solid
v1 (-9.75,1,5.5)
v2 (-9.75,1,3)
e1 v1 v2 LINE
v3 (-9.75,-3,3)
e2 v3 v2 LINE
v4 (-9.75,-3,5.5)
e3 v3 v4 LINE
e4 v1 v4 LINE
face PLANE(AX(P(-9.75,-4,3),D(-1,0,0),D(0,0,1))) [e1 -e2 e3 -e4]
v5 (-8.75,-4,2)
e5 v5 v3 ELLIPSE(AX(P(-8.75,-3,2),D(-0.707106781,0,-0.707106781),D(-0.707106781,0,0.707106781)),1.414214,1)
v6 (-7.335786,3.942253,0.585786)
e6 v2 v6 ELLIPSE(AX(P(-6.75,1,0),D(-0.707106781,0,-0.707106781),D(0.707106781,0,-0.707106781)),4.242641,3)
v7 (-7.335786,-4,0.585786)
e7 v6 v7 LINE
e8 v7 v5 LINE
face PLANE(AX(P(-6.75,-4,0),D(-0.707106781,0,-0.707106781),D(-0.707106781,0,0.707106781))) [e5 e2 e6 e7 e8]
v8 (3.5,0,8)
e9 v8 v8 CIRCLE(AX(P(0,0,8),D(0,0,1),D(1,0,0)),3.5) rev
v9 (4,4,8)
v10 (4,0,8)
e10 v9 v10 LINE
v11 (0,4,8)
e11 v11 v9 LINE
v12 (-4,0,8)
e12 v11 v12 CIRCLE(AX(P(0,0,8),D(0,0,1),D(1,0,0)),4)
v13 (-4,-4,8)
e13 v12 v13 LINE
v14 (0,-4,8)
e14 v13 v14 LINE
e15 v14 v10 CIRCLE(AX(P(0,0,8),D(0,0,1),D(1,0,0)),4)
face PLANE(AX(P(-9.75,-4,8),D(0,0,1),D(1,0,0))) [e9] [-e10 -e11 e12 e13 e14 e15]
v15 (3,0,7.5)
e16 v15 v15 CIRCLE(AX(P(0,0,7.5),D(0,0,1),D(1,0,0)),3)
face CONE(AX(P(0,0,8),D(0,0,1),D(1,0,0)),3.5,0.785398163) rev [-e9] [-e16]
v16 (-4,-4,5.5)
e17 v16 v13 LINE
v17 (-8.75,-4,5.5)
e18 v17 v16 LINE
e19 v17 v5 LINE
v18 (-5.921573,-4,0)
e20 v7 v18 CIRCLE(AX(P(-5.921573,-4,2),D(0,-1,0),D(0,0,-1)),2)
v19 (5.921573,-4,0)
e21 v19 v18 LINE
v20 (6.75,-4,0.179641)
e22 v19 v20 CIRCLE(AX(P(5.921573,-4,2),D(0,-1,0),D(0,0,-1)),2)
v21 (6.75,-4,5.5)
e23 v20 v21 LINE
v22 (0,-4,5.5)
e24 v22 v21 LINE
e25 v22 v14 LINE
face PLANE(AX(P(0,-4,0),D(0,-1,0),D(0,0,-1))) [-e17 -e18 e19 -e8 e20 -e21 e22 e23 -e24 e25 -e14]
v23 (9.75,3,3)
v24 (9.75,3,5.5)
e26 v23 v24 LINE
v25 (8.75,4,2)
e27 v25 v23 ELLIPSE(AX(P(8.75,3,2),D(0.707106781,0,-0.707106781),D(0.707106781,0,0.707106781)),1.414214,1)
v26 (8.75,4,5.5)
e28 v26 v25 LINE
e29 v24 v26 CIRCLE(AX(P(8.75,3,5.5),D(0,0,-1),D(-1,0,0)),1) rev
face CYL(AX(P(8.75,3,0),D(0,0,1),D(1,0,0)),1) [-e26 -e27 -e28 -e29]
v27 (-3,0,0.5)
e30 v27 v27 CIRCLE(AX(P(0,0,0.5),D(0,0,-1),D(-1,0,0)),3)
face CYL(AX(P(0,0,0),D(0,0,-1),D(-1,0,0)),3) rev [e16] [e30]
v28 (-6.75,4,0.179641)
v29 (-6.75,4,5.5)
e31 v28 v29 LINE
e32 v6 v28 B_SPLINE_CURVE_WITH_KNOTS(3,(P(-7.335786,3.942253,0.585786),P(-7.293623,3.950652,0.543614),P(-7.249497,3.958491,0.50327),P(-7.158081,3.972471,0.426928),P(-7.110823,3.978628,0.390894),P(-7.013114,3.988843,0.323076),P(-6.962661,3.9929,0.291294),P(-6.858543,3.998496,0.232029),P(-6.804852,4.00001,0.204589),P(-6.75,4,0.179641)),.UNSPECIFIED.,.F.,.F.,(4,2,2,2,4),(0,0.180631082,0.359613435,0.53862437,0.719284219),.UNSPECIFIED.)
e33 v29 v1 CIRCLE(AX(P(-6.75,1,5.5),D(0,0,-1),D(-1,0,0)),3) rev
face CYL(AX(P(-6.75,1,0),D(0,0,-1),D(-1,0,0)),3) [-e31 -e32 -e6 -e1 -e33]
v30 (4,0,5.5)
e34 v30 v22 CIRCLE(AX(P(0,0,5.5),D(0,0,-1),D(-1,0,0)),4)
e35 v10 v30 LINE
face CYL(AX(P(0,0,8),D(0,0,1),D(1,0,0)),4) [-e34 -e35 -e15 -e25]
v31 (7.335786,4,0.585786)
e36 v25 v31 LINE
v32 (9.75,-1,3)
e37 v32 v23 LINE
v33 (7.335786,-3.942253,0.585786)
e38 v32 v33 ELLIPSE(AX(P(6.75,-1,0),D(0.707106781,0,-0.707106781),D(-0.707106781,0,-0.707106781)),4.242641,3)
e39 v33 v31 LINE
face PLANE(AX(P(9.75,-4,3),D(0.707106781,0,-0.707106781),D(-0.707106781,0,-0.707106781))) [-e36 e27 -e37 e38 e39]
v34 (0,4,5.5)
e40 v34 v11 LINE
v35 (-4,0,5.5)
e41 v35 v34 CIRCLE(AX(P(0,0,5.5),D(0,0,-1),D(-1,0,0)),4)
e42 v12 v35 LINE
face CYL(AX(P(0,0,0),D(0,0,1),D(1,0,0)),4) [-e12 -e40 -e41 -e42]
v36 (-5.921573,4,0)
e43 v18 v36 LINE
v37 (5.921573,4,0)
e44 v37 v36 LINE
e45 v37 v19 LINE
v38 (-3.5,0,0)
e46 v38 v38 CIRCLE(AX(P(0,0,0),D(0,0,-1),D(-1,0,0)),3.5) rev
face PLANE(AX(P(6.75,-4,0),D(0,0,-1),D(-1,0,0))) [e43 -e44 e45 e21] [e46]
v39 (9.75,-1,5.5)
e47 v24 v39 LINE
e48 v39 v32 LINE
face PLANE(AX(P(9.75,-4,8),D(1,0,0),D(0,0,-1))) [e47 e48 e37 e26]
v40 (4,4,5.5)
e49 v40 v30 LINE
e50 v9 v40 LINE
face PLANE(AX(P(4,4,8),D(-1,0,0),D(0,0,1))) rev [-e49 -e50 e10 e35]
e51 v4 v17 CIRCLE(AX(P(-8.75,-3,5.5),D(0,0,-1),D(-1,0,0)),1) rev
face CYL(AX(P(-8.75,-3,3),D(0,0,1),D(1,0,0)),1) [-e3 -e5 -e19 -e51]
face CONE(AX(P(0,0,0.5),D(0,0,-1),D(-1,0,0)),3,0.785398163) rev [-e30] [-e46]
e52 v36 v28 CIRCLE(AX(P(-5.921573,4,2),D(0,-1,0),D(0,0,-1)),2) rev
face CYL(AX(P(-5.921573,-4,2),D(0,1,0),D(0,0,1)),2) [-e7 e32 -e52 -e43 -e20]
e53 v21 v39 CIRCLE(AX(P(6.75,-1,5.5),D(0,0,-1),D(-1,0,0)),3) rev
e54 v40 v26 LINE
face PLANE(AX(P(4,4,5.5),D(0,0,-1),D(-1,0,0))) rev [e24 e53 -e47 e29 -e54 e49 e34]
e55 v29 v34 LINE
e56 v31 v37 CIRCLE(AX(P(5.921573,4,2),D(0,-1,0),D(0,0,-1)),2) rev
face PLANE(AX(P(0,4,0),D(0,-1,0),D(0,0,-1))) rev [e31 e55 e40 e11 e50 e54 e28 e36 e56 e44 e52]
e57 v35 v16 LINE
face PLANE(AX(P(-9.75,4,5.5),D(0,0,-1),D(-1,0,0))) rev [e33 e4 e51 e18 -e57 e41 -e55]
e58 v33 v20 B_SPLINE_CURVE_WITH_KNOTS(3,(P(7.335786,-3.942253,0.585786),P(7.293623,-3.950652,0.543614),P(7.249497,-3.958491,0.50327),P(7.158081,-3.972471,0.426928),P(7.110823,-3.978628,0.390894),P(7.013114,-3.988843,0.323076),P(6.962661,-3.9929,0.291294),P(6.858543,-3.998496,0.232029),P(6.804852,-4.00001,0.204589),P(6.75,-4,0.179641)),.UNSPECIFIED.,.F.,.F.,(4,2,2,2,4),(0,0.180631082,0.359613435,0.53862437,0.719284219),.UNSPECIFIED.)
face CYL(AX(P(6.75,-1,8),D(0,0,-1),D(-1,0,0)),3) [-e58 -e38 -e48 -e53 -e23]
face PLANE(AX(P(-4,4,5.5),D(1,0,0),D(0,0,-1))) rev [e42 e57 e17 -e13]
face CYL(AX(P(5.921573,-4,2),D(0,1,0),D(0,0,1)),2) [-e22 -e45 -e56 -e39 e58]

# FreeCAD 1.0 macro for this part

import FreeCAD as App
import Part
import Sketcher
from FreeCAD import Vector


def edges_at(feature, points):
    """Names of the edges that pass closest to the given points."""
    edges = feature.Shape.Edges
    near = lambda p: min(range(len(edges)), key=lambda i: edges[i].distToShape(Part.Vertex(*p))[0])
    return sorted({f"Edge{near(p) + 1}" for p in points})


def add_polygon(sketch, points):
    """Adds a closed chain of lines whose ends are joined by coincident constraints."""
    first, n = sketch.GeometryCount, len(points)
    for a, b in zip(points, points[1:] + points[:1]):
        sketch.addGeometry(Part.LineSegment(App.Vector(*a, 0), App.Vector(*b, 0)), False)
    for i in range(n):
        sketch.addConstraint(Sketcher.Constraint("Coincident", first + i, 2, first + (i + 1) % n, 1))

doc = App.newDocument("Part")
params = doc.addObject("Spreadsheet::Sheet", "Params")
for row, (alias, value) in enumerate([
    ("sketch1_height", "5 mm"),
    ("sketch1_width", "19.5 mm"),
    ("sketch1_width2", "13.5 mm"),
    ("pad1_length", "8 mm"),
    ("sketch2_height", "2.5 mm"),
    ("sketch2_width", "5.75 mm"),
    ("sketch3_height", "2.5 mm"),
    ("sketch3_width", "5.75 mm"),
    ("sketch4_diameter", "6 mm"),
    ("hole_diameter", "6 mm"),
    ("chamfer_size", "0.5 mm"),
    ("fillet_radius", "1 mm"),
    ("fillet2_radius", "2 mm"),
    ("fillet3_radius", "3 mm"),
    ("fillet4_radius", "4 mm"),
], start=1):
    params.set(f"A{row}", alias)
    params.set(f"B{row}", "=" + value)
    params.setAlias(f"B{row}", alias)

body = doc.addObject("PartDesign::Body", "Body")

# Sketch on XZ plane
sketch1 = body.newObject("Sketcher::SketchObject", "Sketch")
sketch1.AttachmentSupport = (doc.getObject("XZ_Plane"), [""])
sketch1.MapMode = "FlatFace"
sketch1.AttachmentOffset = App.Placement(Vector(0, 0, -4), App.Rotation())
add_polygon(sketch1, [(-9.8, 3), (-9.8, 8), (9.8, 8), (9.8, 3), (6.8, 0), (-6.8, 0)])  # lines 0-5
sketch1.addConstraint(Sketcher.Constraint("Vertical", 0))
sketch1.addConstraint(Sketcher.Constraint("Horizontal", 1))
sketch1.addConstraint(Sketcher.Constraint("Vertical", 2))
sketch1.addConstraint(Sketcher.Constraint("Horizontal", 4))
sketch1.addConstraint(Sketcher.Constraint("Symmetric", 3, 2, 4, 2, -1, 1))
sketch1.addConstraint(Sketcher.Constraint("Symmetric", 2, 2, 5, 2, -2))
sketch1.addConstraint(Sketcher.Constraint("Perpendicular", 3, 5))
sketch1.addConstraint(Sketcher.Constraint("DistanceY", 0, 1, 0, 2, 5.0))
sketch1.addConstraint(Sketcher.Constraint("DistanceX", 1, 1, 1, 2, 19.5))
sketch1.addConstraint(Sketcher.Constraint("DistanceX", 4, 2, 4, 1, 13.5))
sketch1.setExpression("Constraints[13]", "Params.sketch1_height")
sketch1.setExpression("Constraints[14]", "Params.sketch1_width")
sketch1.setExpression("Constraints[15]", "Params.sketch1_width2")
pad1 = body.newObject("PartDesign::Pad", "Pad")
pad1.Profile = sketch1
pad1.setExpression("Length", "Params.pad1_length")

# Sketch on XZ plane
sketch2 = body.newObject("Sketcher::SketchObject", "Sketch001")
sketch2.AttachmentSupport = (doc.getObject("XZ_Plane"), [""])
sketch2.MapMode = "FlatFace"
sketch2.AttachmentOffset = App.Placement(Vector(0, 0, 4), App.Rotation())
add_polygon(sketch2, [(-9.8, 8), (-9.8, 5.5), (-4, 5.5), (-4, 8)])  # lines 0-3
sketch2.addConstraint(Sketcher.Constraint("Vertical", 0))
sketch2.addConstraint(Sketcher.Constraint("Horizontal", 1))
sketch2.addConstraint(Sketcher.Constraint("Vertical", 2))
sketch2.addConstraint(Sketcher.Constraint("Horizontal", 3))
sketch2.addConstraint(Sketcher.Constraint("DistanceY", 0, 2, 0, 1, 2.5))
sketch2.addConstraint(Sketcher.Constraint("DistanceX", 1, 2, -1, 1, 4.0))
sketch2.addConstraint(Sketcher.Constraint("DistanceY", -1, 1, 2, 2, 8.0))
sketch2.addConstraint(Sketcher.Constraint("DistanceX", 1, 1, 1, 2, 5.75))
sketch2.setExpression("Constraints[8]", "Params.sketch2_height")
sketch2.setExpression("Constraints[11]", "Params.sketch2_width")
pocket1 = body.newObject("PartDesign::Pocket", "Pocket")
pocket1.Profile = sketch2
pocket1.Type = "ThroughAll"

# Sketch on XZ plane
sketch3 = body.newObject("Sketcher::SketchObject", "Sketch002")
sketch3.AttachmentSupport = (doc.getObject("XZ_Plane"), [""])
sketch3.MapMode = "FlatFace"
sketch3.AttachmentOffset = App.Placement(Vector(0, 0, 4), App.Rotation())
add_polygon(sketch3, [(4, 8), (4, 5.5), (9.8, 5.5), (9.8, 8)])  # lines 0-3
sketch3.addConstraint(Sketcher.Constraint("Vertical", 0))
sketch3.addConstraint(Sketcher.Constraint("Horizontal", 1))
sketch3.addConstraint(Sketcher.Constraint("Vertical", 2))
sketch3.addConstraint(Sketcher.Constraint("Horizontal", 3))
sketch3.addConstraint(Sketcher.Constraint("DistanceY", 0, 2, 0, 1, 2.5))
sketch3.addConstraint(Sketcher.Constraint("DistanceX", -1, 1, 0, 2, 4.0))
sketch3.addConstraint(Sketcher.Constraint("DistanceY", -1, 1, 2, 2, 8.0))
sketch3.addConstraint(Sketcher.Constraint("DistanceX", 1, 1, 1, 2, 5.75))
sketch3.setExpression("Constraints[8]", "Params.sketch3_height")
sketch3.setExpression("Constraints[11]", "Params.sketch3_width")
pocket2 = body.newObject("PartDesign::Pocket", "Pocket001")
pocket2.Profile = sketch3
pocket2.Type = "ThroughAll"

# Sketch on XY plane
sketch4 = body.newObject("Sketcher::SketchObject", "Sketch003")
sketch4.AttachmentSupport = (doc.getObject("XY_Plane"), [""])
sketch4.MapMode = "FlatFace"
sketch4.addGeometry(Part.Circle(Vector(0, 0, 0), Vector(0, 0, 1), 3), False)
sketch4.addConstraint(Sketcher.Constraint("Coincident", 0, 3, -1, 1))
sketch4.addConstraint(Sketcher.Constraint("Diameter", 0, 6.0))
sketch4.setExpression("Constraints[1]", "Params.sketch4_diameter")
doc.recompute()
hole = body.newObject("PartDesign::Hole", "Hole")
hole.Profile = sketch4
hole.ThreadType = "None"
hole.setExpression("Diameter", "Params.hole_diameter")
hole.DepthType = "ThroughAll"
hole.Reversed = True
doc.recompute()

chamfer = body.newObject("PartDesign::Chamfer", "Chamfer")
chamfer.Base = (hole, edges_at(hole, [(-3, 0, 0), (-3, 0, 8)]))
chamfer.setExpression("Size", "Params.chamfer_size")
doc.recompute()

fillet = body.newObject("PartDesign::Fillet", "Fillet")
fillet.Base = (chamfer, edges_at(chamfer, [(9.75, 4, 4.25), (-9.75, -4, 4.25)]))
fillet.setExpression("Radius", "Params.fillet_radius")
doc.recompute()

fillet2 = body.newObject("PartDesign::Fillet", "Fillet001")
fillet2.Base = (fillet, edges_at(fillet, [(-6.75, 0, 0), (6.75, 0, 0)]))
fillet2.setExpression("Radius", "Params.fillet2_radius")
doc.recompute()

fillet3 = body.newObject("PartDesign::Fillet", "Fillet002")
fillet3.Base = (fillet2, edges_at(fillet2, [(9.75, -4, 4.25), (-9.75, 4, 4.25)]))
fillet3.setExpression("Radius", "Params.fillet3_radius")
doc.recompute()

fillet4 = body.newObject("PartDesign::Fillet", "Fillet003")
fillet4.Base = (fillet3, edges_at(fillet3, [(-4, 4, 6.75), (4, -4, 6.75)]))
fillet4.setExpression("Radius", "Params.fillet4_radius")

doc.recompute()
